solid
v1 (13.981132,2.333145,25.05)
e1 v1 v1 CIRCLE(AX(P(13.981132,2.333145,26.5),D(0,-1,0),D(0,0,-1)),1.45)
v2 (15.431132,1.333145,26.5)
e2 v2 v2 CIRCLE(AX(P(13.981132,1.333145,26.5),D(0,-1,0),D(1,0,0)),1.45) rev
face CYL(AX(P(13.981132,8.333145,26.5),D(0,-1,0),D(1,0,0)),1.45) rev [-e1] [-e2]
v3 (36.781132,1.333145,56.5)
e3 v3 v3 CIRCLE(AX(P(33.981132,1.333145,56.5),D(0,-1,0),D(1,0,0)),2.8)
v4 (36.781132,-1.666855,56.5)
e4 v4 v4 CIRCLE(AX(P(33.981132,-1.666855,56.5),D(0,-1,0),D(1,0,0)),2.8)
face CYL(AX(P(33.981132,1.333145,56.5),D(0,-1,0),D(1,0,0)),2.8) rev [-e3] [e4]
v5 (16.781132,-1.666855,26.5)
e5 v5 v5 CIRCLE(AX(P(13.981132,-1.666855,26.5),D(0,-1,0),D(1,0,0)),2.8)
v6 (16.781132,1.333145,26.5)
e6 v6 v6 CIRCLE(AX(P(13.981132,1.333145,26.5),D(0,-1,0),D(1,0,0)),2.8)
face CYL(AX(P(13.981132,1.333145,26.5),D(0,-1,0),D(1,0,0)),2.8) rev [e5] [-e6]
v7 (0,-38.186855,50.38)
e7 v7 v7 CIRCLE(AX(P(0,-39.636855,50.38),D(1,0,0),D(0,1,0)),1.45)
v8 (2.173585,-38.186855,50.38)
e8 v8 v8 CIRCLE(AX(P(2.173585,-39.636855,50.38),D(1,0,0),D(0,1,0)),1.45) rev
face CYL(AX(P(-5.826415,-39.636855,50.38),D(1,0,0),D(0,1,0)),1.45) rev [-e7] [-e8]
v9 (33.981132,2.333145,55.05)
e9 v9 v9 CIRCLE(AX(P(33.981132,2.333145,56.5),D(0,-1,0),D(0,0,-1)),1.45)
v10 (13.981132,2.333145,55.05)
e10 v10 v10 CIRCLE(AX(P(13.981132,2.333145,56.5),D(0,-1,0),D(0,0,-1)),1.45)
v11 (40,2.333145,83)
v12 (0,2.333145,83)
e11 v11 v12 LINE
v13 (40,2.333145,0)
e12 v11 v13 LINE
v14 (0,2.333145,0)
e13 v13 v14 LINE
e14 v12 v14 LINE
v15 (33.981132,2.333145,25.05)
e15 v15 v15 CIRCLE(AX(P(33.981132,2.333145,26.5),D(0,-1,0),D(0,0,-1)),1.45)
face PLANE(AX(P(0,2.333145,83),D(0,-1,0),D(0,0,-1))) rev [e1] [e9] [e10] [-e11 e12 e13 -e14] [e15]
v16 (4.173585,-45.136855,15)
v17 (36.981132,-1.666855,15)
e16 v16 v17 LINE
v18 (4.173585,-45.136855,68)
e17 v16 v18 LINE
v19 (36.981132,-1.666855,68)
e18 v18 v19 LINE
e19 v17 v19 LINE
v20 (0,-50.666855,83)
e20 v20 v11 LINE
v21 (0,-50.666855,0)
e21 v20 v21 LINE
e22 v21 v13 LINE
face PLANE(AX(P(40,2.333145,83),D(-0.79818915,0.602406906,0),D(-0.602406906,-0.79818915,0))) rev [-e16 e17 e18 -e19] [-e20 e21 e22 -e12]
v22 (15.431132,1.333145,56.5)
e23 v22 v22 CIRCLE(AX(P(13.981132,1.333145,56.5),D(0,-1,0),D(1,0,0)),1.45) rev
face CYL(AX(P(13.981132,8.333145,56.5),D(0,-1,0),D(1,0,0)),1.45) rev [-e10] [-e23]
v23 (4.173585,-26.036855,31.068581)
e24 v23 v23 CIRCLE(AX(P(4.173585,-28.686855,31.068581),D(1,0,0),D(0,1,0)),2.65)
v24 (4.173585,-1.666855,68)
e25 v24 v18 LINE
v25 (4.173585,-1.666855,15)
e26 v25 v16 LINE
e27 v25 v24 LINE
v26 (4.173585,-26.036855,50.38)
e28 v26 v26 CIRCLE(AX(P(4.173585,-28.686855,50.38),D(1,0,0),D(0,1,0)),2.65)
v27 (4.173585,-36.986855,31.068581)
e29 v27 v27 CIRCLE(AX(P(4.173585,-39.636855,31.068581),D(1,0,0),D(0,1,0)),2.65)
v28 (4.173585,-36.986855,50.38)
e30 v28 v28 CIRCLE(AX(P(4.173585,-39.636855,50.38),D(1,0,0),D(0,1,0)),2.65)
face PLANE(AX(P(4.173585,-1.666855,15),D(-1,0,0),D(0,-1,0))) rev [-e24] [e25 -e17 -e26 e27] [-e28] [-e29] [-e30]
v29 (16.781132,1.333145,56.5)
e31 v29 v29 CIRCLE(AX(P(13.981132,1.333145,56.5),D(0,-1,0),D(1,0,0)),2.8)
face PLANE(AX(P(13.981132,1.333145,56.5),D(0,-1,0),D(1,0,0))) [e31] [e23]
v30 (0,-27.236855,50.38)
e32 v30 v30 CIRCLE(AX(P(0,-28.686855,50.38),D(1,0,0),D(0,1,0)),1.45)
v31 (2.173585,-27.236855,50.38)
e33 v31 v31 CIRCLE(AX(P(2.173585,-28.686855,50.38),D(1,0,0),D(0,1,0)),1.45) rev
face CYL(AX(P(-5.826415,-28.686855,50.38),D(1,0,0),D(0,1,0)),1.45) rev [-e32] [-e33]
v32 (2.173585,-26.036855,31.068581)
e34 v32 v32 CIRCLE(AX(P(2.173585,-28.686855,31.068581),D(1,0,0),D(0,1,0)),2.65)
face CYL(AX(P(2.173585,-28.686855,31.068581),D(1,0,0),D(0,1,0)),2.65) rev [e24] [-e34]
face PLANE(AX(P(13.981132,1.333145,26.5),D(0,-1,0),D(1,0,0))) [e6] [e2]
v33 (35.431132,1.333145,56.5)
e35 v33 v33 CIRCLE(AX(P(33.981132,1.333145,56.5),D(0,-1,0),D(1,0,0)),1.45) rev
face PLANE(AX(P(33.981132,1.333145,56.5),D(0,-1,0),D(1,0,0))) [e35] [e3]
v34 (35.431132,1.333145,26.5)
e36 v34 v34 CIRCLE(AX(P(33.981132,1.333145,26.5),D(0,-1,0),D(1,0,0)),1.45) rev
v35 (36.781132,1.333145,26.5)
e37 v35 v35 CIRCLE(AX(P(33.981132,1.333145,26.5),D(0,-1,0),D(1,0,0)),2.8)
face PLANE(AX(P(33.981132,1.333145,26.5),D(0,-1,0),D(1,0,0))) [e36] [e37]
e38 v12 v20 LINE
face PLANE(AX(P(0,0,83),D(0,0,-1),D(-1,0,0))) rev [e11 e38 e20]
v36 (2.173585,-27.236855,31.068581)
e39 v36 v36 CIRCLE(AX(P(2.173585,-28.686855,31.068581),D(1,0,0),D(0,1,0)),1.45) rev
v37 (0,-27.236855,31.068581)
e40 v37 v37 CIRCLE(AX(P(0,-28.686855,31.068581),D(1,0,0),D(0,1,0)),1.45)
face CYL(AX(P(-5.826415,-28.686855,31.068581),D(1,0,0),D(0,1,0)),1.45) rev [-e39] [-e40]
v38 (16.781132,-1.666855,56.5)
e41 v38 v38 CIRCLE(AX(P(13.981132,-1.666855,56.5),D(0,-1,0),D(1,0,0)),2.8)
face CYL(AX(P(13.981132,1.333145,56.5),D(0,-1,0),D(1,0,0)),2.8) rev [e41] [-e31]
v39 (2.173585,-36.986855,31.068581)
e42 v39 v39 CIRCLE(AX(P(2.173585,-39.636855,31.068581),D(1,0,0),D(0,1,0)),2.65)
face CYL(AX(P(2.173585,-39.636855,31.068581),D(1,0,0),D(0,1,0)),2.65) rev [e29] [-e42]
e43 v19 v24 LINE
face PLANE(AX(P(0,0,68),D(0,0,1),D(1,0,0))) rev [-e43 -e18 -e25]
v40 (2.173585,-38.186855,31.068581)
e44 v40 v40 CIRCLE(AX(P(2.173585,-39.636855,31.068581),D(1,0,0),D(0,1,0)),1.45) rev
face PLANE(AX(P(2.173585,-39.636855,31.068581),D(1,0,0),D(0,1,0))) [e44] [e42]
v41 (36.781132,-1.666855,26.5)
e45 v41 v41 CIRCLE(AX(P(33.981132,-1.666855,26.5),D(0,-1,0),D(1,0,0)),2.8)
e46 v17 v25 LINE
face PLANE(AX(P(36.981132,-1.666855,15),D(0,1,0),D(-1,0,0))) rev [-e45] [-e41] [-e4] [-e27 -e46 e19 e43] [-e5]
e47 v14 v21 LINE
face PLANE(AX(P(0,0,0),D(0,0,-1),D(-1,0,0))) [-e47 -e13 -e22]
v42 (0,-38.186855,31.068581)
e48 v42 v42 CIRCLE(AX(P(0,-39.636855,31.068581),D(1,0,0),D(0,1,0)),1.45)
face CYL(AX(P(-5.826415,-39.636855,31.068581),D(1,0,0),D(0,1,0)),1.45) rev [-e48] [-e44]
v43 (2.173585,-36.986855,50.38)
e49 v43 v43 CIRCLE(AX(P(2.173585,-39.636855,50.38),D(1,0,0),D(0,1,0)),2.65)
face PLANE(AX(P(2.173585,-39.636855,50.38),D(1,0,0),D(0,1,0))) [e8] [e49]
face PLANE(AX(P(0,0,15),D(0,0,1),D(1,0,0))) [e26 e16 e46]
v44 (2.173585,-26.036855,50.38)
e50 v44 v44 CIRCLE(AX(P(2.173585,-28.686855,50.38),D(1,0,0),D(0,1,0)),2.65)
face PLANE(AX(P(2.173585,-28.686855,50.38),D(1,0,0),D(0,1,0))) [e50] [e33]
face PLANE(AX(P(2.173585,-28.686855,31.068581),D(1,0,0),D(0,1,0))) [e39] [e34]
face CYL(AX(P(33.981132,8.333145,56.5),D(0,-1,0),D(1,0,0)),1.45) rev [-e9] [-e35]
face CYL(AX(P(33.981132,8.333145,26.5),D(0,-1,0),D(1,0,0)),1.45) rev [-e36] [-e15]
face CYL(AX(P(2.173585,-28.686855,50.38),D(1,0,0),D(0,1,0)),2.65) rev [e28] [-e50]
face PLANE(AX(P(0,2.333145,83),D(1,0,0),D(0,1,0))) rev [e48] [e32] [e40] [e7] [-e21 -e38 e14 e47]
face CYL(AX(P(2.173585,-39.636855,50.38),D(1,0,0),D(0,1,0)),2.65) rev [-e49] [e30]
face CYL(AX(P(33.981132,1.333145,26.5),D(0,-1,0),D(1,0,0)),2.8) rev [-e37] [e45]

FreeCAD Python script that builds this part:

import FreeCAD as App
import Part
import Sketcher
from FreeCAD import Vector
Q = App.Units.Quantity


def add_polygon(sketch, points):
    """Adds a closed chain of lines whose ends are joined by coincident constraints."""
    first, n = sketch.GeometryCount, len(points)
    for a, b in zip(points, points[1:] + points[:1]):
        sketch.addGeometry(Part.LineSegment(App.Vector(*a, 0), App.Vector(*b, 0)), False)
    for i in range(n):
        sketch.addConstraint(Sketcher.Constraint("Coincident", first + i, 2, first + (i + 1) % n, 1))

doc = App.newDocument("Part")
params = doc.addObject("Spreadsheet::Sheet", "Params")
for row, (alias, value) in enumerate([
    ("sketch1_width", "40 mm"),
    ("sketch1_height", "53 mm"),
    ("pad1_length", "83 mm"),
    ("sketch2_height", "43.47 mm"),
    ("pocket1_length", "53 mm"),
    ("sketch3_diameter", "2.9 mm"),
    ("pocket2_length", "10 mm"),
    ("sketch4_diameter", "2.9 mm"),
    ("pocket3_length", "10 mm"),
    ("sketch5_diameter", "5.3 mm"),
    ("pocket4_length", "2 mm"),
    ("sketch6_diameter", "5.6 mm"),
    ("pocket5_length", "3 mm"),
], start=1):
    params.set(f"A{row}", alias)
    params.set(f"B{row}", "=" + value)
    params.setAlias(f"B{row}", alias)

body = doc.addObject("PartDesign::Body", "Body")

# Sketch on XY plane
sketch1 = doc.addObject("Sketcher::SketchObject", "Sketch")
body.addObject(sketch1)
sketch1.AttachmentSupport = (doc.XY_Plane, [""])
sketch1.MapMode = "FlatFace"
add_polygon(sketch1, [(0, 2), (0, -51), (40, 2)])  # lines 0-2
sketch1.addConstraint(Sketcher.Constraint("Vertical", 0))
sketch1.addConstraint(Sketcher.Constraint("Horizontal", 2))
sketch1.addConstraint(Sketcher.Constraint("PointOnObject", 0, 2, -2))
sketch1.addConstraint(Sketcher.Constraint("DistanceX", 2, 2, 2, 1, Q("40 mm")))
sketch1.addConstraint(Sketcher.Constraint("DistanceY", 0, 2, 0, 1, Q("53 mm")))
sketch1.addConstraint(Sketcher.Constraint("DistanceY", 0, 2, -1, 1, Q("50.666855 mm")))
sketch1.setExpression("Constraints[6]", "Params.sketch1_width")
sketch1.setExpression("Constraints[7]", "Params.sketch1_height")
pad1 = doc.addObject("PartDesign::Pad", "Pad")
body.addObject(pad1)
pad1.Profile = sketch1
pad1.setExpression("Length", "Params.pad1_length")

# Sketch on XY plane
sketch2 = doc.addObject("Sketcher::SketchObject", "Sketch001")
body.addObject(sketch2)
sketch2.AttachmentSupport = (doc.XY_Plane, [""])
sketch2.MapMode = "FlatFace"
sketch2.AttachmentOffset = App.Placement(Vector(0, 0, 41.5), App.Rotation())
add_polygon(sketch2, [(37, -2), (4, -2), (4, -45)])  # lines 0-2
sketch2.addConstraint(Sketcher.Constraint("Horizontal", 0))
sketch2.addConstraint(Sketcher.Constraint("Vertical", 1))
sketch2.addConstraint(Sketcher.Constraint("DistanceY", 1, 2, 1, 1, Q("43.47 mm")))
sketch2.addConstraint(Sketcher.Constraint("DistanceX", 0, 2, 0, 1, Q("32.807547 mm")))
sketch2.addConstraint(Sketcher.Constraint("DistanceX", -1, 1, 0, 2, Q("4.173585 mm")))
sketch2.addConstraint(Sketcher.Constraint("DistanceY", 0, 2, -1, 1, Q("1.666855 mm")))
sketch2.setExpression("Constraints[5]", "Params.sketch2_height")
pocket1 = doc.addObject("PartDesign::Pocket", "Pocket")
body.addObject(pocket1)
pocket1.Profile = sketch2
pocket1.setExpression("Length", "Params.pocket1_length")
pocket1.Midplane = True

# Sketch on YZ plane
sketch3 = doc.addObject("Sketcher::SketchObject", "Sketch002")
body.addObject(sketch3)
sketch3.AttachmentSupport = (doc.YZ_Plane, [""])
sketch3.MapMode = "FlatFace"
sketch3.AttachmentOffset = App.Placement(Vector(0, 0, 4.173585), App.Rotation())
sketch3.addGeometry(Part.Circle(Vector(-39.6, 31.1, 0), Vector(0, 0, 1), 1.4), False)
sketch3.addGeometry(Part.Circle(Vector(-28.7, 31.1, 0), Vector(0, 0, 1), 1.4), False)
sketch3.addGeometry(Part.Circle(Vector(-28.7, 50.4, 0), Vector(0, 0, 1), 1.4), False)
sketch3.addGeometry(Part.Circle(Vector(-39.6, 50.4, 0), Vector(0, 0, 1), 1.4), False)
sketch3.addConstraint(Sketcher.Constraint("Equal", 0, 1))
sketch3.addConstraint(Sketcher.Constraint("Equal", 1, 2))
sketch3.addConstraint(Sketcher.Constraint("Equal", 2, 3))
sketch3.addConstraint(Sketcher.Constraint("Horizontal", 0, 3, 1, 3))
sketch3.addConstraint(Sketcher.Constraint("Horizontal", 2, 3, 3, 3))
sketch3.addConstraint(Sketcher.Constraint("Vertical", 1, 3, 2, 3))
sketch3.addConstraint(Sketcher.Constraint("Vertical", 0, 3, 3, 3))
sketch3.addConstraint(Sketcher.Constraint("Diameter", 0, Q("2.9 mm")))
sketch3.addConstraint(Sketcher.Constraint("DistanceY", -1, 1, 2, 3, Q("50.38 mm")))
sketch3.addConstraint(Sketcher.Constraint("DistanceX", 0, 3, 1, 3, Q("10.95 mm")))
sketch3.addConstraint(Sketcher.Constraint("DistanceY", -1, 1, 0, 3, Q("31.068581 mm")))
sketch3.addConstraint(Sketcher.Constraint("DistanceX", 0, 3, -1, 1, Q("39.636855 mm")))
sketch3.setExpression("Constraints[7]", "Params.sketch3_diameter")
pocket2 = doc.addObject("PartDesign::Pocket", "Pocket001")
body.addObject(pocket2)
pocket2.Profile = sketch3
pocket2.setExpression("Length", "Params.pocket2_length")

# Sketch on XZ plane
sketch4 = doc.addObject("Sketcher::SketchObject", "Sketch003")
body.addObject(sketch4)
sketch4.AttachmentSupport = (doc.XZ_Plane, [""])
sketch4.MapMode = "FlatFace"
sketch4.AttachmentOffset = App.Placement(Vector(0, 0, 1.666855), App.Rotation())
sketch4.addGeometry(Part.Circle(Vector(14, 56.5, 0), Vector(0, 0, 1), 1.4), False)
sketch4.addGeometry(Part.Circle(Vector(34, 56.5, 0), Vector(0, 0, 1), 1.4), False)
sketch4.addGeometry(Part.Circle(Vector(14, 26.5, 0), Vector(0, 0, 1), 1.4), False)
sketch4.addGeometry(Part.Circle(Vector(34, 26.5, 0), Vector(0, 0, 1), 1.4), False)
sketch4.addConstraint(Sketcher.Constraint("Equal", 0, 1))
sketch4.addConstraint(Sketcher.Constraint("Equal", 1, 2))
sketch4.addConstraint(Sketcher.Constraint("Equal", 2, 3))
sketch4.addConstraint(Sketcher.Constraint("Horizontal", 0, 3, 1, 3))
sketch4.addConstraint(Sketcher.Constraint("Horizontal", 2, 3, 3, 3))
sketch4.addConstraint(Sketcher.Constraint("Vertical", 0, 3, 2, 3))
sketch4.addConstraint(Sketcher.Constraint("Vertical", 1, 3, 3, 3))
sketch4.addConstraint(Sketcher.Constraint("Diameter", 0, Q("2.9 mm")))
sketch4.addConstraint(Sketcher.Constraint("DistanceX", 0, 3, 1, 3, Q("20 mm")))
sketch4.addConstraint(Sketcher.Constraint("DistanceY", 2, 3, 0, 3, Q("30 mm")))
sketch4.addConstraint(Sketcher.Constraint("DistanceY", -1, 1, 0, 3, Q("56.5 mm")))
sketch4.addConstraint(Sketcher.Constraint("DistanceX", -1, 1, 0, 3, Q("13.981132 mm")))
sketch4.setExpression("Constraints[7]", "Params.sketch4_diameter")
pocket3 = doc.addObject("PartDesign::Pocket", "Pocket002")
body.addObject(pocket3)
pocket3.Profile = sketch4
pocket3.setExpression("Length", "Params.pocket3_length")

# Sketch on YZ plane
sketch5 = doc.addObject("Sketcher::SketchObject", "Sketch004")
body.addObject(sketch5)
sketch5.AttachmentSupport = (doc.YZ_Plane, [""])
sketch5.MapMode = "FlatFace"
sketch5.AttachmentOffset = App.Placement(Vector(0, 0, 4.173585), App.Rotation())
sketch5.addGeometry(Part.Circle(Vector(-28.7, 50.4, 0), Vector(0, 0, 1), 2.6), False)
sketch5.addGeometry(Part.Circle(Vector(-28.7, 31.1, 0), Vector(0, 0, 1), 2.6), False)
sketch5.addGeometry(Part.Circle(Vector(-39.6, 50.4, 0), Vector(0, 0, 1), 2.6), False)
sketch5.addGeometry(Part.Circle(Vector(-39.6, 31.1, 0), Vector(0, 0, 1), 2.6), False)
sketch5.addConstraint(Sketcher.Constraint("Equal", 0, 1))
sketch5.addConstraint(Sketcher.Constraint("Equal", 1, 2))
sketch5.addConstraint(Sketcher.Constraint("Equal", 2, 3))
sketch5.addConstraint(Sketcher.Constraint("Horizontal", 0, 3, 2, 3))
sketch5.addConstraint(Sketcher.Constraint("Horizontal", 1, 3, 3, 3))
sketch5.addConstraint(Sketcher.Constraint("Vertical", 0, 3, 1, 3))
sketch5.addConstraint(Sketcher.Constraint("Vertical", 2, 3, 3, 3))
sketch5.addConstraint(Sketcher.Constraint("Diameter", 0, Q("5.3 mm")))
sketch5.addConstraint(Sketcher.Constraint("DistanceY", -1, 1, 0, 3, Q("50.38 mm")))
sketch5.addConstraint(Sketcher.Constraint("DistanceX", 2, 3, 0, 3, Q("10.95 mm")))
sketch5.addConstraint(Sketcher.Constraint("DistanceY", -1, 1, 1, 3, Q("31.068581 mm")))
sketch5.addConstraint(Sketcher.Constraint("DistanceX", 0, 3, -1, 1, Q("28.686855 mm")))
sketch5.setExpression("Constraints[7]", "Params.sketch5_diameter")
pocket4 = doc.addObject("PartDesign::Pocket", "Pocket003")
body.addObject(pocket4)
pocket4.Profile = sketch5
pocket4.setExpression("Length", "Params.pocket4_length")

# Sketch on XZ plane
sketch6 = doc.addObject("Sketcher::SketchObject", "Sketch005")
body.addObject(sketch6)
sketch6.AttachmentSupport = (doc.XZ_Plane, [""])
sketch6.MapMode = "FlatFace"
sketch6.AttachmentOffset = App.Placement(Vector(0, 0, 1.666855), App.Rotation())
sketch6.addGeometry(Part.Circle(Vector(14, 56.5, 0), Vector(0, 0, 1), 2.8), False)
sketch6.addGeometry(Part.Circle(Vector(34, 56.5, 0), Vector(0, 0, 1), 2.8), False)
sketch6.addGeometry(Part.Circle(Vector(14, 26.5, 0), Vector(0, 0, 1), 2.8), False)
sketch6.addGeometry(Part.Circle(Vector(34, 26.5, 0), Vector(0, 0, 1), 2.8), False)
sketch6.addConstraint(Sketcher.Constraint("Equal", 0, 1))
sketch6.addConstraint(Sketcher.Constraint("Equal", 1, 2))
sketch6.addConstraint(Sketcher.Constraint("Equal", 2, 3))
sketch6.addConstraint(Sketcher.Constraint("Horizontal", 0, 3, 1, 3))
sketch6.addConstraint(Sketcher.Constraint("Horizontal", 2, 3, 3, 3))
sketch6.addConstraint(Sketcher.Constraint("Vertical", 0, 3, 2, 3))
sketch6.addConstraint(Sketcher.Constraint("Vertical", 1, 3, 3, 3))
sketch6.addConstraint(Sketcher.Constraint("Diameter", 0, Q("5.6 mm")))
sketch6.addConstraint(Sketcher.Constraint("DistanceX", 0, 3, 1, 3, Q("20 mm")))
sketch6.addConstraint(Sketcher.Constraint("DistanceY", 2, 3, 0, 3, Q("30 mm")))
sketch6.addConstraint(Sketcher.Constraint("DistanceY", -1, 1, 0, 3, Q("56.5 mm")))
sketch6.addConstraint(Sketcher.Constraint("DistanceX", -1, 1, 0, 3, Q("13.981132 mm")))
sketch6.setExpression("Constraints[7]", "Params.sketch6_diameter")
pocket5 = doc.addObject("PartDesign::Pocket", "Pocket004")
body.addObject(pocket5)
pocket5.Profile = sketch6
pocket5.setExpression("Length", "Params.pocket5_length")

doc.recompute()
